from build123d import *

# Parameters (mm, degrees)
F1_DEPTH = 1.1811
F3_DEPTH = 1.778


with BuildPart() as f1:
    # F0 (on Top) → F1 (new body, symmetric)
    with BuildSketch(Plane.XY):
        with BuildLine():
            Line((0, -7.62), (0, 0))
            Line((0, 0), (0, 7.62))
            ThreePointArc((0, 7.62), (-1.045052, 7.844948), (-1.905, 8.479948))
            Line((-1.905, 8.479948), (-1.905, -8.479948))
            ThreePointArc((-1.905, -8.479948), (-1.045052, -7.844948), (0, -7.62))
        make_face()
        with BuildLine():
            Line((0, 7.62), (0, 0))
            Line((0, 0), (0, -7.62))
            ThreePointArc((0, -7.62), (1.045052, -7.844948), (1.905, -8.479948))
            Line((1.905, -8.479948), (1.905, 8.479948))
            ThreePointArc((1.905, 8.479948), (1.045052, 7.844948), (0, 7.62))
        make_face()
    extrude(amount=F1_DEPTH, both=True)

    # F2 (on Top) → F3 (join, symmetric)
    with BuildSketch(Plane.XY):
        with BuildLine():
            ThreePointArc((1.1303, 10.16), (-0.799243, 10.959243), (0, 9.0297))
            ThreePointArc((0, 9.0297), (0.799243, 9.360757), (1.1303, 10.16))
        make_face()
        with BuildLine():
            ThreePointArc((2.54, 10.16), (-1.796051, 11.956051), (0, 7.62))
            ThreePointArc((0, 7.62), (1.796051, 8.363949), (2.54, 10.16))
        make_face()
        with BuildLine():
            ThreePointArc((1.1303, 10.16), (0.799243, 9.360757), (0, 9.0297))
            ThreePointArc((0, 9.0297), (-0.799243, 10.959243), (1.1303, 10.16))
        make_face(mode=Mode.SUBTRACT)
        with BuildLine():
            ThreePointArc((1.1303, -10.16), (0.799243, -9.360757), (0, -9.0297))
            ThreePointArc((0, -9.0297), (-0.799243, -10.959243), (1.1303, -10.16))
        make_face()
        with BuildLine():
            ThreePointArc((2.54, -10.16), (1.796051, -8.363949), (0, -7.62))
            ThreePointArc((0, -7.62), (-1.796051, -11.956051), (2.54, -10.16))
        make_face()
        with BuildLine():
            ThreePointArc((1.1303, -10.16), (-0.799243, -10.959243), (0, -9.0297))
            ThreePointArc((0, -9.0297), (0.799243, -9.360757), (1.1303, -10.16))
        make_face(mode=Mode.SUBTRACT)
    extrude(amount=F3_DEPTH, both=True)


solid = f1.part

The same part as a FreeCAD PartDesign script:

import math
import FreeCAD as App
import Part
import Sketcher
Q = App.Units.Quantity

doc = App.newDocument("Part")
body = doc.addObject("PartDesign::Body", "Body")

sketch1 = body.newObject("Sketcher::SketchObject", "Sketch")
sketch1.AttachmentSupport = (doc.getObject("XY_Plane"), [""])
sketch1.MapMode = "FlatFace"
sketch1.addGeometry(Part.ArcOfCircle(Part.Circle(App.Vector(0, 10.160001, 0), App.Vector(0, 0, 1), 2.540001), math.radians(-138.590372), math.radians(-90.00001)), False)
sketch1.addGeometry(Part.LineSegment(App.Vector(-1.905, 8.479948, 0), App.Vector(-1.905, -8.479948, 0)), False)
sketch1.addGeometry(Part.ArcOfCircle(Part.Circle(App.Vector(0, -10.160001, 0), App.Vector(0, 0, 1), 2.540001), math.radians(90.00001), math.radians(138.590372)), False)
sketch1.addGeometry(Part.ArcOfCircle(Part.Circle(App.Vector(0, -10.160001, 0), App.Vector(0, 0, 1), 2.540001), math.radians(41.409628), math.radians(89.99999)), False)
sketch1.addGeometry(Part.LineSegment(App.Vector(1.905, -8.479948, 0), App.Vector(1.905, 8.479948, 0)), False)
sketch1.addGeometry(Part.ArcOfCircle(Part.Circle(App.Vector(0, 10.160001, 0), App.Vector(0, 0, 1), 2.540001), math.radians(-89.99999), math.radians(-41.409628)), False)
sketch1.addConstraint(Sketcher.Constraint("Coincident", 0, 1, 1, 1))
sketch1.addConstraint(Sketcher.Constraint("Coincident", 1, 2, 2, 2))
sketch1.addConstraint(Sketcher.Constraint("Tangent", 2, 1, 3, 2))
sketch1.addConstraint(Sketcher.Constraint("Coincident", 3, 1, 4, 1))
sketch1.addConstraint(Sketcher.Constraint("Coincident", 4, 2, 5, 2))
sketch1.addConstraint(Sketcher.Constraint("Tangent", 5, 1, 0, 2))
sketch1.addConstraint(Sketcher.Constraint("Vertical", 1))
sketch1.addConstraint(Sketcher.Constraint("Vertical", 4))
sketch1.addConstraint(Sketcher.Constraint("Equal", 0, 2))
sketch1.addConstraint(Sketcher.Constraint("Equal", 2, 3))
sketch1.addConstraint(Sketcher.Constraint("Equal", 3, 5))
sketch1.addConstraint(Sketcher.Constraint("Symmetric", 0, 3, 2, 3, -1, 1))
sketch1.addConstraint(Sketcher.Constraint("Symmetric", 1, 2, 3, 1, -2))
sketch1.addConstraint(Sketcher.Constraint("PointOnObject", 2, 1, -2))
sketch1.addConstraint(Sketcher.Constraint("PointOnObject", 5, 1, -2))
sketch1.addConstraint(Sketcher.Constraint("Radius", 0, Q("0.1 in")))
sketch1.addConstraint(Sketcher.Constraint("DistanceY", -1, 1, 0, 3, Q("0.4 in")))
sketch1.addConstraint(Sketcher.Constraint("DistanceX", 1, 2, 3, 1, Q("0.15 in")))
pad1 = body.newObject("PartDesign::Pad", "Pad")
pad1.Profile = sketch1
pad1.Length = Q("0.093 in")
pad1.Midplane = True

sketch2 = body.newObject("Sketcher::SketchObject", "Sketch001")
sketch2.AttachmentSupport = (doc.getObject("XY_Plane"), [""])
sketch2.MapMode = "FlatFace"
sketch2.addGeometry(Part.ArcOfCircle(Part.Circle(App.Vector(0, 10.16, 0), App.Vector(0, 0, 1), 2.54), math.radians(0.000003), math.radians(269.999997)), False)
sketch2.addGeometry(Part.ArcOfCircle(Part.Circle(App.Vector(-0.000001, 10.160001, 0), App.Vector(0, 0, 1), 2.540001), math.radians(-89.999983), math.radians(-0.000017)), False)
sketch2.addGeometry(Part.ArcOfCircle(Part.Circle(App.Vector(0, 10.16, 0), App.Vector(0, 0, 1), 1.1303), math.radians(-0.000006), math.radians(270.000006)), False)
sketch2.addGeometry(Part.ArcOfCircle(Part.Circle(App.Vector(0.000001, 10.159999, 0), App.Vector(0, 0, 1), 1.130299), math.radians(-90.000036), math.radians(0.000036)), False)
sketch2.addGeometry(Part.ArcOfCircle(Part.Circle(App.Vector(-0.000001, -10.160001, 0), App.Vector(0, 0, 1), 2.540001), math.radians(0.000017), math.radians(89.999983)), False)
sketch2.addGeometry(Part.ArcOfCircle(Part.Circle(App.Vector(0, -10.16, 0), App.Vector(0, 0, 1), 2.54), math.radians(90.000003), math.radians(359.999997)), False)
sketch2.addGeometry(Part.ArcOfCircle(Part.Circle(App.Vector(0.000001, -10.159999, 0), App.Vector(0, 0, 1), 1.130299), math.radians(-0.000036), math.radians(90.000036)), False)
sketch2.addGeometry(Part.ArcOfCircle(Part.Circle(App.Vector(0, -10.16, 0), App.Vector(0, 0, 1), 1.1303), math.radians(89.999994), math.radians(360.000006)), False)
sketch2.addConstraint(Sketcher.Constraint("Tangent", 0, 1, 1, 2))
sketch2.addConstraint(Sketcher.Constraint("Coincident", 1, 1, 0, 2))
sketch2.addConstraint(Sketcher.Constraint("Tangent", 2, 1, 3, 2))
sketch2.addConstraint(Sketcher.Constraint("Coincident", 3, 1, 2, 2))
sketch2.addConstraint(Sketcher.Constraint("Tangent", 4, 1, 5, 2))
sketch2.addConstraint(Sketcher.Constraint("Coincident", 5, 1, 4, 2))
sketch2.addConstraint(Sketcher.Constraint("Tangent", 6, 1, 7, 2))
sketch2.addConstraint(Sketcher.Constraint("Coincident", 7, 1, 6, 2))
sketch2.addConstraint(Sketcher.Constraint("Coincident", 2, 3, 0, 3))
sketch2.addConstraint(Sketcher.Constraint("Coincident", 6, 3, 4, 3))
sketch2.addConstraint(Sketcher.Constraint("Equal", 1, 4))
sketch2.addConstraint(Sketcher.Constraint("Equal", 3, 6))
sketch2.addConstraint(Sketcher.Constraint("Symmetric", 0, 3, 4, 3, -1, 1))
sketch2.addConstraint(Sketcher.Constraint("Symmetric", 0, 1, 4, 1, -1))
sketch2.addConstraint(Sketcher.Constraint("PointOnObject", 1, 1, -2))
sketch2.addConstraint(Sketcher.Constraint("PointOnObject", 3, 1, -2))
sketch2.addConstraint(Sketcher.Constraint("PointOnObject", 5, 1, -2))
sketch2.addConstraint(Sketcher.Constraint("PointOnObject", 7, 1, -2))
sketch2.addConstraint(Sketcher.Constraint("Horizontal", 3, 3, 0, 1))
sketch2.addConstraint(Sketcher.Constraint("Horizontal", 0, 1, 2, 1))
sketch2.addConstraint(Sketcher.Constraint("Horizontal", 4, 1, 6, 1))
sketch2.addConstraint(Sketcher.Constraint("Radius", 0, Q("0.1 in")))
sketch2.addConstraint(Sketcher.Constraint("DistanceY", -1, 1, 0, 3, Q("0.4 in")))
sketch2.addConstraint(Sketcher.Constraint("Radius", 2, Q("0.0445 in")))
pad2 = body.newObject("PartDesign::Pad", "Pad001")
pad2.Profile = sketch2
pad2.Length = Q("0.14 in")
pad2.Midplane = True

doc.recompute()
